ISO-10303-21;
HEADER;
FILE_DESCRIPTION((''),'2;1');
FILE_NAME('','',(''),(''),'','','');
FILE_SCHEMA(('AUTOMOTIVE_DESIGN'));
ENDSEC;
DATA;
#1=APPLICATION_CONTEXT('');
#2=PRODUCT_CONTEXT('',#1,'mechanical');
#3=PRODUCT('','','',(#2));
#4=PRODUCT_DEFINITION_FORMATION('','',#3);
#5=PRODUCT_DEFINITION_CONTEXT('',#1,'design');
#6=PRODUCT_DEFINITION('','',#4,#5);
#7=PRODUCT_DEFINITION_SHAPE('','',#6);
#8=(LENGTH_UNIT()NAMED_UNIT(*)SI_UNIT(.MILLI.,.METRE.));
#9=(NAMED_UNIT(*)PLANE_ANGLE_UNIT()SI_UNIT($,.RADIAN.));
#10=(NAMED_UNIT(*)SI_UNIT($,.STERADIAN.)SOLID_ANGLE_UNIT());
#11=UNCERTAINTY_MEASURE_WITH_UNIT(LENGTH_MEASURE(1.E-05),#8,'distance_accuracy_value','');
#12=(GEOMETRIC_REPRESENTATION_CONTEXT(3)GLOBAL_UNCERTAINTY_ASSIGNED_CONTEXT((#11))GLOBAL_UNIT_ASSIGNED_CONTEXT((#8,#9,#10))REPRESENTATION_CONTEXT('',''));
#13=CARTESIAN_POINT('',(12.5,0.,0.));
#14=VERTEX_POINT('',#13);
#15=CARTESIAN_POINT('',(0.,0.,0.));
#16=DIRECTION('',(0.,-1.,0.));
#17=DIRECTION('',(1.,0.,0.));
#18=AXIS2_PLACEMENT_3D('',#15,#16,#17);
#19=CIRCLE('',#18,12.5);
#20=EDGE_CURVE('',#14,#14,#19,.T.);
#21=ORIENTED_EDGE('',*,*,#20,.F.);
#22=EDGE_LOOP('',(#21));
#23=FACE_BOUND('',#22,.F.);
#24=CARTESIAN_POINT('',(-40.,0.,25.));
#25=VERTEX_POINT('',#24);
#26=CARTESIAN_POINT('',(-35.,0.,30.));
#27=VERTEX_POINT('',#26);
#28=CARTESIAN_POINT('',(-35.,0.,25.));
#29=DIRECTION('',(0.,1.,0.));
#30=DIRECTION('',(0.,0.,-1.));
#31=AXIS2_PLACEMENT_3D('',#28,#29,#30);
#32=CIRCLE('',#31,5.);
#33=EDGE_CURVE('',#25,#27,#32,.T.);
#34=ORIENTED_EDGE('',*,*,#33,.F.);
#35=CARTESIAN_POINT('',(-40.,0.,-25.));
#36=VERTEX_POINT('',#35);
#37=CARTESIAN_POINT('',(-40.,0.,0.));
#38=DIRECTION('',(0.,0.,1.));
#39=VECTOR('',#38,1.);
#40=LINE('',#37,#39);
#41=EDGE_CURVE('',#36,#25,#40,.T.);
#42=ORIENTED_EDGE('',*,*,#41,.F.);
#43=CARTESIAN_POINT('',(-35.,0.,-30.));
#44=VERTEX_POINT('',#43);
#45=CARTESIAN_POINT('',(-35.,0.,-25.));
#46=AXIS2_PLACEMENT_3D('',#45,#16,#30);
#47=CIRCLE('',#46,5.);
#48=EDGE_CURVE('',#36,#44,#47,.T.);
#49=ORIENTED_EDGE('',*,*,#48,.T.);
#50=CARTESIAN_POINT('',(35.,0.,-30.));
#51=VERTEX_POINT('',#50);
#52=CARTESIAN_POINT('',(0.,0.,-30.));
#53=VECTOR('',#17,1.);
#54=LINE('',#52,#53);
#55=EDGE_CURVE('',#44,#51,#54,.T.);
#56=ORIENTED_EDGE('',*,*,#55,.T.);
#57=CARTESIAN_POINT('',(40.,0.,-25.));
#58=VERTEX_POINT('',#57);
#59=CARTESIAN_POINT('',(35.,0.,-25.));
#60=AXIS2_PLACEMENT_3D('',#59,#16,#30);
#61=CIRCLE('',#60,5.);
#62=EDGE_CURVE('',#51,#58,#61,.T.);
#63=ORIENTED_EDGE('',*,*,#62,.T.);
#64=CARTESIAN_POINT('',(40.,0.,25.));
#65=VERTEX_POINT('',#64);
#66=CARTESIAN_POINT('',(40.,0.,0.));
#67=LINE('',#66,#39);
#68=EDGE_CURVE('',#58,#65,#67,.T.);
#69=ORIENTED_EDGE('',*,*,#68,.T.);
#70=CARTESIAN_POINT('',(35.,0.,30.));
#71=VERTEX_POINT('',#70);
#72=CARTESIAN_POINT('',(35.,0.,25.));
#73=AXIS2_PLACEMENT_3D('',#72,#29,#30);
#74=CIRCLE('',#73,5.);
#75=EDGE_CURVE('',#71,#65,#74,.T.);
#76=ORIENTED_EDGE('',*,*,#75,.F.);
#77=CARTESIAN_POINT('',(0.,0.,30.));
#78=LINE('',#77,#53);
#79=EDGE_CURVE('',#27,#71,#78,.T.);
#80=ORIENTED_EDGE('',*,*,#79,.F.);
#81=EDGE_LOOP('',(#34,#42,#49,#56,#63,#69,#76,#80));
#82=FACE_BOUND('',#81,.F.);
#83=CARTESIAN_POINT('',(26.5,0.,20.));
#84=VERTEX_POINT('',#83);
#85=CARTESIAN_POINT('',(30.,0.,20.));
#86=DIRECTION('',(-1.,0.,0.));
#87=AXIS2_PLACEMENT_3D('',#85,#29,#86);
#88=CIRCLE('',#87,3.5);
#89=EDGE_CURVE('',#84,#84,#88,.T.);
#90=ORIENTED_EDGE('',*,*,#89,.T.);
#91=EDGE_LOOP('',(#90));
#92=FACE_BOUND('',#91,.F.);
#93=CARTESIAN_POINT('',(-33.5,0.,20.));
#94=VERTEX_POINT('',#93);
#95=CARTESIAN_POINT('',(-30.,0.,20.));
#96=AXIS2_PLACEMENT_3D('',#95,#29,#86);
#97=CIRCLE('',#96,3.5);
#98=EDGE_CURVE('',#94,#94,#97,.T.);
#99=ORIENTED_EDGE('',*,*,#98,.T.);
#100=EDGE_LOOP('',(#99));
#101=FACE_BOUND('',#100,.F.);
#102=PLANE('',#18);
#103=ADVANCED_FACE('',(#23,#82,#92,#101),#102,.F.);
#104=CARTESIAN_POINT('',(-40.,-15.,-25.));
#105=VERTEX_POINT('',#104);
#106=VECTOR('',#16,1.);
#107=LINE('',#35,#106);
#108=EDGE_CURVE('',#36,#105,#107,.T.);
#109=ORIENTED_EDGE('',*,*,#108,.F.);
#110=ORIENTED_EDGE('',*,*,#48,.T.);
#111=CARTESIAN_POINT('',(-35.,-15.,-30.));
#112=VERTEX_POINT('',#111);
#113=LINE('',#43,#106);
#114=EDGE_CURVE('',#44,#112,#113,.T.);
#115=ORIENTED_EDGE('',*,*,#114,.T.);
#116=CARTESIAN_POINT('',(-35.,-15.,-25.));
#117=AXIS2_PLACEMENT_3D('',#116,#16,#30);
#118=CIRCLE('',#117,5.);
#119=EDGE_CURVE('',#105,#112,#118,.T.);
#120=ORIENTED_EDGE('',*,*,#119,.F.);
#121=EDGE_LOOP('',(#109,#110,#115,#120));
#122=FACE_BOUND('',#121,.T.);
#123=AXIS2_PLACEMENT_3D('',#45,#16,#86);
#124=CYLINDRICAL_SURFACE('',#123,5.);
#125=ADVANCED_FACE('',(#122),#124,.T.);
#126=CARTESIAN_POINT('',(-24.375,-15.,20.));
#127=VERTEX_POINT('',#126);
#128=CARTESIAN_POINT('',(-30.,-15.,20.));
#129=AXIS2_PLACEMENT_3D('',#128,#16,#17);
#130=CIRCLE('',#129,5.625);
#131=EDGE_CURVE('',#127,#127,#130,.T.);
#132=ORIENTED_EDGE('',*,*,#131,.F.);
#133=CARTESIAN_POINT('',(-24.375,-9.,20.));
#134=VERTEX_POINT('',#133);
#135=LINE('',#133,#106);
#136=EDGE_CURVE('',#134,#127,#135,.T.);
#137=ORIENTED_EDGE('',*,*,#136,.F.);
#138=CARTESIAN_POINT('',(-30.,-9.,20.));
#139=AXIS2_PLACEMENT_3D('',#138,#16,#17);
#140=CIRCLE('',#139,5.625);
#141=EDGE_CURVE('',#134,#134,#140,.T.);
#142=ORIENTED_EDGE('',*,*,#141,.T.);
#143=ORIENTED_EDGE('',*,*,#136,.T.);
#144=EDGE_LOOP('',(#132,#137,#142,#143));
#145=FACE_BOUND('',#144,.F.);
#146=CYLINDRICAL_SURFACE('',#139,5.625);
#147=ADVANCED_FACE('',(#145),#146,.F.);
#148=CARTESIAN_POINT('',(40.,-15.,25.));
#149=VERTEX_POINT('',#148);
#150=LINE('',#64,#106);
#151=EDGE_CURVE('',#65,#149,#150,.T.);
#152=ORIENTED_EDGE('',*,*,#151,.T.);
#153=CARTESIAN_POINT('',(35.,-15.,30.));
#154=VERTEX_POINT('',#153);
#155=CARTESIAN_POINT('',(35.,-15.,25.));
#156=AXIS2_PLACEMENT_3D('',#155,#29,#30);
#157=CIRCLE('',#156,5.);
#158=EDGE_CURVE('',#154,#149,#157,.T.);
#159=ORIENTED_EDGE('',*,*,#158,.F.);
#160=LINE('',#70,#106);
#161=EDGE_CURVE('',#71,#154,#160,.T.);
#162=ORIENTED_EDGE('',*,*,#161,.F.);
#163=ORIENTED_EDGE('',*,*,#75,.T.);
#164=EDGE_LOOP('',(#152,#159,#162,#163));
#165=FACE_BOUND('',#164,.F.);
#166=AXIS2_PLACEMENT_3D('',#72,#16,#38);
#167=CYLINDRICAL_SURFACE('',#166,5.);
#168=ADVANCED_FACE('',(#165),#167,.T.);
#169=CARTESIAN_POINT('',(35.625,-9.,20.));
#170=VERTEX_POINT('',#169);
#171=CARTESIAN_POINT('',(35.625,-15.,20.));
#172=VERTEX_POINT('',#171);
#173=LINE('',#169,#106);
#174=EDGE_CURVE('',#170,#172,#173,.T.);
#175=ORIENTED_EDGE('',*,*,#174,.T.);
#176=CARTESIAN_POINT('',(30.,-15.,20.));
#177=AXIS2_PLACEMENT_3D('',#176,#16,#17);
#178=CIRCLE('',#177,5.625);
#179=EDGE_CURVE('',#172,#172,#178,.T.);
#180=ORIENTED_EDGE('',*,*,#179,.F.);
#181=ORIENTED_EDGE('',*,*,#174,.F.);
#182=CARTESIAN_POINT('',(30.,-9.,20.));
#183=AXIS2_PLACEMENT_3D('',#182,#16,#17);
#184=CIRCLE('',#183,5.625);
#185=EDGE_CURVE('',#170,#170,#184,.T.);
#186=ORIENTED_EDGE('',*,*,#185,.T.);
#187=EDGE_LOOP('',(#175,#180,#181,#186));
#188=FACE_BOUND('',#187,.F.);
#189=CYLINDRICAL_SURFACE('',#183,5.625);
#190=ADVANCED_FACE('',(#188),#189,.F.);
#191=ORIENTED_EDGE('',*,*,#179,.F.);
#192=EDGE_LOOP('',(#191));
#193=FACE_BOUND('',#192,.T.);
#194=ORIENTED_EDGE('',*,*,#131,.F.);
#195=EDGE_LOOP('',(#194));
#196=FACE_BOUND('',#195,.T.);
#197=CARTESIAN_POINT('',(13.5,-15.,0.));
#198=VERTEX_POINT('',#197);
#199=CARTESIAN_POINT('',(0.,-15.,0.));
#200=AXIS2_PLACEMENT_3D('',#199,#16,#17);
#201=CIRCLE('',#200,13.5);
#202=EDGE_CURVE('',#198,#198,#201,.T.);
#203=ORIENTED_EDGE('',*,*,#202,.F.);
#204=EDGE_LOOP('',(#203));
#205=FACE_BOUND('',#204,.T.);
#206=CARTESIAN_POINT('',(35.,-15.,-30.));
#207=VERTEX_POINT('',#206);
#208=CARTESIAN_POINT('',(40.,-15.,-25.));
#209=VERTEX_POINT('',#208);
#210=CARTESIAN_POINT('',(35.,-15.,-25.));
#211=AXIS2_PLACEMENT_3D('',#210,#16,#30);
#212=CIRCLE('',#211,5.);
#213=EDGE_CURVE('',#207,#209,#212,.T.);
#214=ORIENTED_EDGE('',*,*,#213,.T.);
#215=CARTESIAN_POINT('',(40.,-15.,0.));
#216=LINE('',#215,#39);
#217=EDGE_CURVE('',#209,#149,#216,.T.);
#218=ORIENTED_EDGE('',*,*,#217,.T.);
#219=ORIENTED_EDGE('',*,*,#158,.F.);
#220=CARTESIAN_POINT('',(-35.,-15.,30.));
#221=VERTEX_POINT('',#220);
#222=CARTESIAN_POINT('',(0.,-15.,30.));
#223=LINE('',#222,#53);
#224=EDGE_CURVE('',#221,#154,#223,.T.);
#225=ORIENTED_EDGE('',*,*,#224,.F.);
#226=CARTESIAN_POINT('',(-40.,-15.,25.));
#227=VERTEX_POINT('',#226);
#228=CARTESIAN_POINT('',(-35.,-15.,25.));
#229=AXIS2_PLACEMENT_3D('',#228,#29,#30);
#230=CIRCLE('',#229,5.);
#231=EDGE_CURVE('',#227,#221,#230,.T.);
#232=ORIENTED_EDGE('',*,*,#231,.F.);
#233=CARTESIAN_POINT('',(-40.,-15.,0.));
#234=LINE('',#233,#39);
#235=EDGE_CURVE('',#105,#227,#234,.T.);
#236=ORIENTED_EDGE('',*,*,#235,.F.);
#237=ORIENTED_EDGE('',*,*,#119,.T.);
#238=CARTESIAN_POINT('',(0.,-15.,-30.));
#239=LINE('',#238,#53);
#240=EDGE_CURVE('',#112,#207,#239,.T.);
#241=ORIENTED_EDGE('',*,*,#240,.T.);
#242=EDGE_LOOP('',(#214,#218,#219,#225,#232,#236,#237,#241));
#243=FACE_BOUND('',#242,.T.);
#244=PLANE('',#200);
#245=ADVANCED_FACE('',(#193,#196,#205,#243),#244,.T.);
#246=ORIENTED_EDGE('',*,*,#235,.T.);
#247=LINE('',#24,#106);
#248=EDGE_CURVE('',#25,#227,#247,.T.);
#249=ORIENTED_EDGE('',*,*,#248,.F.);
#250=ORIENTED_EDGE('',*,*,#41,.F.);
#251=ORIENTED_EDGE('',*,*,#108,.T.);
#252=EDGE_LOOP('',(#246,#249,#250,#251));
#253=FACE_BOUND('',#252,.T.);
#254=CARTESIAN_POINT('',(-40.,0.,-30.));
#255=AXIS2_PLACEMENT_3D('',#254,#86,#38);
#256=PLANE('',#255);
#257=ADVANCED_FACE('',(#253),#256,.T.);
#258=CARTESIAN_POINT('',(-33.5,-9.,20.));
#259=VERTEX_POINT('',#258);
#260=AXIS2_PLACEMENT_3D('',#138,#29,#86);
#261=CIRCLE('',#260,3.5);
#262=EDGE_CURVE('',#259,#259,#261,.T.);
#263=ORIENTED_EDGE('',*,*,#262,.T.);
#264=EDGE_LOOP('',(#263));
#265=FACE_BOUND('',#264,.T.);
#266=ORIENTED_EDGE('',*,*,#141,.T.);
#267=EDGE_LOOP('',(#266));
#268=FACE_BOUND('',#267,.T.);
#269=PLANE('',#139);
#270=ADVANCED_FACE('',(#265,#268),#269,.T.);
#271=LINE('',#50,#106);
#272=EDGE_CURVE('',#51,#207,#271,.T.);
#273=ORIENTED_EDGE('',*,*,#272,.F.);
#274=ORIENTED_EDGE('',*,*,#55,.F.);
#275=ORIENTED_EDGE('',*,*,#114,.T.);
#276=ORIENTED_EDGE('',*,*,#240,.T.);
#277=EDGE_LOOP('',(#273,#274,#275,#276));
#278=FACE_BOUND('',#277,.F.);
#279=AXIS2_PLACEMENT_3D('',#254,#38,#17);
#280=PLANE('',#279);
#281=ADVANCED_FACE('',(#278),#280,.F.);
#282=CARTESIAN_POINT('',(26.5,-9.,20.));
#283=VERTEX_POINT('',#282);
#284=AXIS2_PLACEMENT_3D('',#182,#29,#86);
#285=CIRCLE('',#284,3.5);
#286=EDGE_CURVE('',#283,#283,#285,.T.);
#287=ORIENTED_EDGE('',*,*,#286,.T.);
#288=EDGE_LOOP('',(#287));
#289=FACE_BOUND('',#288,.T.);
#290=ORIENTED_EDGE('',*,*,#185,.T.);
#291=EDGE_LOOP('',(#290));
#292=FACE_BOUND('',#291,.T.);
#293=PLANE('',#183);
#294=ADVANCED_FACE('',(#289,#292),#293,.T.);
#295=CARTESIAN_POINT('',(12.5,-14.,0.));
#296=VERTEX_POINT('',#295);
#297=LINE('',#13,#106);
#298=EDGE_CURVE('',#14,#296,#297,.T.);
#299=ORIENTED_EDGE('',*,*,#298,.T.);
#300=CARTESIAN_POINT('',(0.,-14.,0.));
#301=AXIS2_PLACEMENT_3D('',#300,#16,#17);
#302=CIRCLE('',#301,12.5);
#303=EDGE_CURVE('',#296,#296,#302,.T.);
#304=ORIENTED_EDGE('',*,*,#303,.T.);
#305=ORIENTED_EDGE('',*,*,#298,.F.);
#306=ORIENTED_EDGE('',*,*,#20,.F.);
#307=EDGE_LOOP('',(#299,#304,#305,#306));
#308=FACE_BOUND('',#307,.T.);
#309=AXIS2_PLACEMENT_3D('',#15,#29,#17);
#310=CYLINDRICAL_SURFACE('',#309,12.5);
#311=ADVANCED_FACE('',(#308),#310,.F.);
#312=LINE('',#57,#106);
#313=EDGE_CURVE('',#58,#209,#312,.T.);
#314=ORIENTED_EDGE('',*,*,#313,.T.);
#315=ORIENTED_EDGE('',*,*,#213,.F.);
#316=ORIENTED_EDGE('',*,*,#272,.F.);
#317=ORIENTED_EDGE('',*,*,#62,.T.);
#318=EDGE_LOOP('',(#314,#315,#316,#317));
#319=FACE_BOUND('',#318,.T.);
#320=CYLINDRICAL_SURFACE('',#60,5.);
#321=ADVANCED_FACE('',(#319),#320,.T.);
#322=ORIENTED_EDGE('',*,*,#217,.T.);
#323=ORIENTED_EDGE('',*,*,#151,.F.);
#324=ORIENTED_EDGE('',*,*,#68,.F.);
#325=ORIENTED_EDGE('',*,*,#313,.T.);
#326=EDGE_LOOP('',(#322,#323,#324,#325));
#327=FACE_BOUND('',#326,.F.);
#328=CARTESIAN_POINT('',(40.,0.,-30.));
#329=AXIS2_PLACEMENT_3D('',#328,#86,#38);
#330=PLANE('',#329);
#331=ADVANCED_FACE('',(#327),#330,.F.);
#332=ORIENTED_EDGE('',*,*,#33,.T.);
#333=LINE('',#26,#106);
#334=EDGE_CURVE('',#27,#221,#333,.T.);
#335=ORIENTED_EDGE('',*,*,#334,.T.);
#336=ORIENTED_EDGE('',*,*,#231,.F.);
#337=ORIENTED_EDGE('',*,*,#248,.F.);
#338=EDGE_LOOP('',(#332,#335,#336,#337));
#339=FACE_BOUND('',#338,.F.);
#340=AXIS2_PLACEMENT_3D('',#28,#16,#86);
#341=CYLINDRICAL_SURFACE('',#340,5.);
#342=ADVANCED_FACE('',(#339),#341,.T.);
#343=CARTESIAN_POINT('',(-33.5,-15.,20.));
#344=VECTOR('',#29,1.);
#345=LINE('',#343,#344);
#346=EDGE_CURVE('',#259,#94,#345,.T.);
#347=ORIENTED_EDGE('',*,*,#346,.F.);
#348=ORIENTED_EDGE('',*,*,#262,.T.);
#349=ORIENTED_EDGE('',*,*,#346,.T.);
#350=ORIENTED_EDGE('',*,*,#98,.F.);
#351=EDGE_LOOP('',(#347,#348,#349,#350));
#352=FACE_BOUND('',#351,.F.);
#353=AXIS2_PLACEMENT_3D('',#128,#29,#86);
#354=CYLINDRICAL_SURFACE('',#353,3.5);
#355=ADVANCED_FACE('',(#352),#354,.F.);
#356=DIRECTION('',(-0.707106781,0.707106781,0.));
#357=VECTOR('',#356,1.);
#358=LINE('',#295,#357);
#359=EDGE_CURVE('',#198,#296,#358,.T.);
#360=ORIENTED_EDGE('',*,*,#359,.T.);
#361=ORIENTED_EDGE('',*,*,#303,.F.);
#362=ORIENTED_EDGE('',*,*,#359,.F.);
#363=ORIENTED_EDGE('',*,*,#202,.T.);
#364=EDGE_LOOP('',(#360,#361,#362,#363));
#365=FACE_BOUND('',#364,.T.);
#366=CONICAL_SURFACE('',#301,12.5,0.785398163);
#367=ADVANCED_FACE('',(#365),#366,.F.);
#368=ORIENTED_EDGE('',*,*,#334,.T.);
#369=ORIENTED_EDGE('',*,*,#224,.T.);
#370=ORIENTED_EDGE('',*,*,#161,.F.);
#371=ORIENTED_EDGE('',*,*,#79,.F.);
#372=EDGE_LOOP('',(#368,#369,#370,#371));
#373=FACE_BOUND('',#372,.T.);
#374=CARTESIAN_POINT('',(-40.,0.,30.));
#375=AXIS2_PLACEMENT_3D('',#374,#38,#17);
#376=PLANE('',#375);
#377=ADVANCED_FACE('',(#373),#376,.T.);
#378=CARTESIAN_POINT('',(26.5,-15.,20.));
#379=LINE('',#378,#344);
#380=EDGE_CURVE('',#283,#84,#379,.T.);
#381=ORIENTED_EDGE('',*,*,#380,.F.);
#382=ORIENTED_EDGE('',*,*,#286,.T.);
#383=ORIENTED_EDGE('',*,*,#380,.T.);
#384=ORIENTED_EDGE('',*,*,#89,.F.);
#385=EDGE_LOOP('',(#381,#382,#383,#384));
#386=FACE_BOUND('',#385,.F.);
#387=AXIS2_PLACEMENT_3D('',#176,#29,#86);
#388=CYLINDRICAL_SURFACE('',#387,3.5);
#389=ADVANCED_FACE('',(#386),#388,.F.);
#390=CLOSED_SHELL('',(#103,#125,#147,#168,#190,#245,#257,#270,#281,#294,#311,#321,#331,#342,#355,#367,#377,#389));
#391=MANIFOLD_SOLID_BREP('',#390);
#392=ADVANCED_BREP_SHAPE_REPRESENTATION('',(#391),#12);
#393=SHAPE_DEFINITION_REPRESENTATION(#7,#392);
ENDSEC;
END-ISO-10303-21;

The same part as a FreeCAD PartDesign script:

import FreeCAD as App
import Part
import Sketcher


def edges_at(feature, points):
    """Names of the edges that pass closest to the given points."""
    edges = feature.Shape.Edges
    near = lambda p: min(range(len(edges)), key=lambda i: edges[i].distToShape(Part.Vertex(*p))[0])
    return sorted({f"Edge{near(p) + 1}" for p in points})


def add_polygon(sketch, points):
    """Adds a closed chain of lines whose ends are joined by coincident constraints."""
    first, n = sketch.GeometryCount, len(points)
    for a, b in zip(points, points[1:] + points[:1]):
        sketch.addGeometry(Part.LineSegment(App.Vector(*a, 0), App.Vector(*b, 0)), False)
    for i in range(n):
        sketch.addConstraint(Sketcher.Constraint("Coincident", first + i, 2, first + (i + 1) % n, 1))

doc = App.newDocument("Part")
params = doc.addObject("Spreadsheet::Sheet", "Params")
for row, (alias, value) in enumerate([
    ("sketch1_diameter", "25 mm"),
    ("sketch1_width", "80 mm"),
    ("sketch1_height", "60 mm"),
    ("pad1_length", "15 mm"),
    ("sketch2_diameter", "7 mm"),
    ("hole_diameter", "7 mm"),
    ("hole_cbore_diameter", "11.25 mm"),
    ("hole_cbore_depth", "6 mm"),
    ("fillet_radius", "5 mm"),
    ("chamfer_size", "1 mm"),
], start=1):
    params.set(f"A{row}", alias)
    params.set(f"B{row}", "=" + value)
    params.setAlias(f"B{row}", alias)

body = doc.addObject("PartDesign::Body", "Body")

# Sketch on XZ plane
sketch1 = body.newObject("Sketcher::SketchObject", "Sketch")
sketch1.AttachmentSupport = (doc.getObject("XZ_Plane"), [""])
sketch1.MapMode = "FlatFace"
add_polygon(sketch1, [(-40, 30), (-40, -30), (40, -30), (40, 30)])  # lines 0-3
sketch1.addGeometry(Part.Circle(App.Vector(0, 0, 0), App.Vector(0, 0, 1), 12), False)  # 4
sketch1.addConstraint([
    Sketcher.Constraint("Vertical", 0),
    Sketcher.Constraint("Horizontal", 1),
    Sketcher.Constraint("Vertical", 2),
    Sketcher.Constraint("Horizontal", 3),
    Sketcher.Constraint("Coincident", 4, 3, -1, 1),
    Sketcher.Constraint("Symmetric", 0, 2, 2, 2, -1, 1),
    Sketcher.Constraint("Diameter", 4, 25.0),
    Sketcher.Constraint("DistanceX", 1, 1, 1, 2, 80.0),
    Sketcher.Constraint("DistanceY", 0, 2, 0, 1, 60.0),
])
sketch1.setExpression("Constraints[10]", "Params.sketch1_diameter")
sketch1.setExpression("Constraints[11]", "Params.sketch1_width")
sketch1.setExpression("Constraints[12]", "Params.sketch1_height")
pad1 = body.newObject("PartDesign::Pad", "Pad")
pad1.Profile = sketch1
pad1.setExpression("Length", "Params.pad1_length")

# Sketch on XZ plane
sketch2 = body.newObject("Sketcher::SketchObject", "Sketch001")
sketch2.AttachmentSupport = (doc.getObject("XZ_Plane"), [""])
sketch2.MapMode = "FlatFace"
sketch2.AttachmentOffset = App.Placement(App.Vector(0, 0, 15), App.Rotation())
sketch2.addGeometry([
    Part.Circle(App.Vector(-30, 20, 0), App.Vector(0, 0, 1), 3.5),
    Part.Circle(App.Vector(30, 20, 0), App.Vector(0, 0, 1), 3.5),
], False)
sketch2.addConstraint([
    Sketcher.Constraint("Equal", 0, 1),
    Sketcher.Constraint("Symmetric", 0, 3, 1, 3, -2),
    Sketcher.Constraint("Diameter", 0, 7.0),
    Sketcher.Constraint("DistanceX", 0, 3, -1, 1, 30.0),
    Sketcher.Constraint("DistanceY", -1, 1, 0, 3, 20.0),
])
sketch2.setExpression("Constraints[2]", "Params.sketch2_diameter")
doc.recompute()
hole = body.newObject("PartDesign::Hole", "Hole")
hole.Profile = sketch2
hole.ThreadType = "None"
hole.setExpression("Diameter", "Params.hole_diameter")
hole.DepthType = "ThroughAll"
hole.HoleCutType = "Counterbore"
hole.setExpression("HoleCutDiameter", "Params.hole_cbore_diameter")
hole.setExpression("HoleCutDepth", "Params.hole_cbore_depth")
doc.recompute()

fillet = body.newObject("PartDesign::Fillet", "Fillet")
fillet.Base = (hole, edges_at(hole, [
    (40, -7.5, 30),
    (40, -7.5, -30),
    (-40, -7.5, 30),
    (-40, -7.5, -30),
]))
fillet.setExpression("Radius", "Params.fillet_radius")
doc.recompute()

chamfer = body.newObject("PartDesign::Chamfer", "Chamfer")
chamfer.Base = (fillet, edges_at(fillet, [(-12.5, -15, 0)]))
chamfer.setExpression("Size", "Params.chamfer_size")

doc.recompute()
